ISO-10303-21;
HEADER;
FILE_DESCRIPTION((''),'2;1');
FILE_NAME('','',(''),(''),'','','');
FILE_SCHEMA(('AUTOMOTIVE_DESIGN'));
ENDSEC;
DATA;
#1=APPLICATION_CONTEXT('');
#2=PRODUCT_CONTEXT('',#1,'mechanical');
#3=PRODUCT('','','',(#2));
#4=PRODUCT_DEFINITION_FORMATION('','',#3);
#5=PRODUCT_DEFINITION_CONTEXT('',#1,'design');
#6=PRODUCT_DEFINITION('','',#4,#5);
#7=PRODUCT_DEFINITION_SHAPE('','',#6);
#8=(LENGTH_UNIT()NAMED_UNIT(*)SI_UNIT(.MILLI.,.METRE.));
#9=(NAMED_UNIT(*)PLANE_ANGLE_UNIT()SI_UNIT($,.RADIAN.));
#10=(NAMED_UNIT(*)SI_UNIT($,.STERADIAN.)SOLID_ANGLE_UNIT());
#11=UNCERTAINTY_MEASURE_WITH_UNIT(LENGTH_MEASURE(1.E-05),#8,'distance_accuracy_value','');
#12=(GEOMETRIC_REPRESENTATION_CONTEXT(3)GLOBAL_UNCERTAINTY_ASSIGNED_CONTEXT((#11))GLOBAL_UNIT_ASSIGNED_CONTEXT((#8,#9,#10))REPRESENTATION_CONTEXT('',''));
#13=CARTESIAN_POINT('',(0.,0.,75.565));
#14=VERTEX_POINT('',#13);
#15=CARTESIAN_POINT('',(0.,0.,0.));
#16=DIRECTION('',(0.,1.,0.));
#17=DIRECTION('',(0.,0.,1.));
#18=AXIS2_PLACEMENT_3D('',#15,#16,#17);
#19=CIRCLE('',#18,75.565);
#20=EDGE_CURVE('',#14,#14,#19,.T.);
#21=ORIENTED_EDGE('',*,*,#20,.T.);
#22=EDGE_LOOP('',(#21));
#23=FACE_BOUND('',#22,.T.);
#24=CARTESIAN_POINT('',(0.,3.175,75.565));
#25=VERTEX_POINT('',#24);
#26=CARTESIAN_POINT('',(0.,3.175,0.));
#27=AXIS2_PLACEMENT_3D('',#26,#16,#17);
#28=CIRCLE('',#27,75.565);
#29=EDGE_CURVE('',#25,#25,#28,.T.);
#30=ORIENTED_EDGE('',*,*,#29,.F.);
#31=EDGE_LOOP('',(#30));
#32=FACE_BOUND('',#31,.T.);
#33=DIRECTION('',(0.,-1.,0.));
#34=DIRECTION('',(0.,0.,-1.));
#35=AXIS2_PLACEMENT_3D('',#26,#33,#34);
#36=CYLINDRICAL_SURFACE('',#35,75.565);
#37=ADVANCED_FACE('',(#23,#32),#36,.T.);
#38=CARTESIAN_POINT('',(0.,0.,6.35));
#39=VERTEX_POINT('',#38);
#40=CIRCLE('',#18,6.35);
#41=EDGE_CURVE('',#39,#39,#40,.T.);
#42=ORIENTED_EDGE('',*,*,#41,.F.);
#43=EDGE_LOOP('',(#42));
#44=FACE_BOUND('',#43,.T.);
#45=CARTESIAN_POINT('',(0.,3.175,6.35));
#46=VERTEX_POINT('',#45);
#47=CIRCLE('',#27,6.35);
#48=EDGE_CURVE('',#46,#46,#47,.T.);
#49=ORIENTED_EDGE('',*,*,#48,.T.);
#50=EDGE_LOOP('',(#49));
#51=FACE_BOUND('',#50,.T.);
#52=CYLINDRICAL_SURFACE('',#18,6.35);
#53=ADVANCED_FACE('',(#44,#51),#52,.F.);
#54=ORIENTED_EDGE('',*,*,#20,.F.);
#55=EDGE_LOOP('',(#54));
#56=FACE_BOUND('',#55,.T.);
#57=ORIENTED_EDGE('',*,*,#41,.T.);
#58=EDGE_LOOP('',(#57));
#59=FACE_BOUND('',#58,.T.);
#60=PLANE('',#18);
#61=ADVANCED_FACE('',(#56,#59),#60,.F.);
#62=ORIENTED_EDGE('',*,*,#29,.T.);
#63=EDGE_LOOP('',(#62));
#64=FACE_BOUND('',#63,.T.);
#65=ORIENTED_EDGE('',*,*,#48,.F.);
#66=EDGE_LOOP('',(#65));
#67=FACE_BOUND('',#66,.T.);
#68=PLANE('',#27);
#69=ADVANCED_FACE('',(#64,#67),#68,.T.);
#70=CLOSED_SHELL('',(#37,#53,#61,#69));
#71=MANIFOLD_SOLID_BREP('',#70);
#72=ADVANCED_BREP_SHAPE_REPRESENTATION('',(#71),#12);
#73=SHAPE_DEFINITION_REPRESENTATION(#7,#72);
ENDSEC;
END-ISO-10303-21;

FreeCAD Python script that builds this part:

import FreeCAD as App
import Part
import Sketcher
Q = App.Units.Quantity

doc = App.newDocument("Part")
body = doc.addObject("PartDesign::Body", "Body")

sketch1 = body.newObject("Sketcher::SketchObject", "Sketch")
sketch1.AttachmentSupport = (doc.getObject("XZ_Plane"), [""])
sketch1.MapMode = "FlatFace"
sketch1.addGeometry(Part.Circle(App.Vector(0, 0, 0), App.Vector(0, 0, 1), 76), False)
sketch1.addConstraint([
    Sketcher.Constraint("Coincident", 0, 3, -1, 1),
    Sketcher.Constraint("Diameter", 0, Q("5.95 in")),
])
pad1 = body.newObject("PartDesign::Pad", "Pad")
pad1.Profile = sketch1
pad1.Length = Q("0.125 in")
pad1.Reversed = True

sketch2 = body.newObject("Sketcher::SketchObject", "Sketch001")
sketch2.AttachmentSupport = (doc.getObject("XZ_Plane"), [""])
sketch2.MapMode = "FlatFace"
sketch2.AttachmentOffset = App.Placement(App.Vector(0, 0, -0.125 * 25.4), App.Rotation())
sketch2.addGeometry(Part.Circle(App.Vector(0, 0, 0), App.Vector(0, 0, 1), 6), False)
sketch2.addConstraint([
    Sketcher.Constraint("Coincident", 0, 3, -1, 1),
    Sketcher.Constraint("Diameter", 0, Q("0.5 in")),
])
pocket1 = body.newObject("PartDesign::Pocket", "Pocket")
pocket1.Profile = sketch2
pocket1.Type = "ThroughAll"
pocket1.Midplane = True

doc.recompute()
